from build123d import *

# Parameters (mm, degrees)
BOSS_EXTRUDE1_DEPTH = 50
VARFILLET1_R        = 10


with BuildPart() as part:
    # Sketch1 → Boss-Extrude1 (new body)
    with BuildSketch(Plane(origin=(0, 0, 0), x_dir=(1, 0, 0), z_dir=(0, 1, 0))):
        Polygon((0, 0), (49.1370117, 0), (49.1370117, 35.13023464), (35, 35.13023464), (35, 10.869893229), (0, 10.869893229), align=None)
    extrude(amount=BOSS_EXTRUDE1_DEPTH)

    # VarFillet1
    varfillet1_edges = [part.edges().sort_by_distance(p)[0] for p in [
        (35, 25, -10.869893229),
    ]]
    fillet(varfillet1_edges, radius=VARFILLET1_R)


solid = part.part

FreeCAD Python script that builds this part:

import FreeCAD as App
import Part
import Sketcher
from FreeCAD import Vector


def edges_at(feature, points):
    """Names of the edges that pass closest to the given points."""
    edges = feature.Shape.Edges
    near = lambda p: min(range(len(edges)), key=lambda i: edges[i].distToShape(Part.Vertex(*p))[0])
    return sorted({f"Edge{near(p) + 1}" for p in points})


def add_polygon(sketch, points):
    """Adds a closed chain of lines whose ends are joined by coincident constraints."""
    first, n = sketch.GeometryCount, len(points)
    for a, b in zip(points, points[1:] + points[:1]):
        sketch.addGeometry(Part.LineSegment(App.Vector(*a, 0), App.Vector(*b, 0)), False)
    for i in range(n):
        sketch.addConstraint(Sketcher.Constraint("Coincident", first + i, 2, first + (i + 1) % n, 1))

doc = App.newDocument("Part")
params = doc.addObject("Spreadsheet::Sheet", "Params")
for row, (alias, value) in enumerate([
    ("sketch1_width", "35 mm"),
    ("pad1_length", "50 mm"),
    ("fillet_radius", "10 mm"),
], start=1):
    params.set(f"A{row}", alias)
    params.set(f"B{row}", "=" + value)
    params.setAlias(f"B{row}", alias)

body = doc.addObject("PartDesign::Body", "Body")

# Sketch on XZ plane
sketch1 = body.newObject("Sketcher::SketchObject", "Sketch")
sketch1.AttachmentSupport = (doc.getObject("XZ_Plane"), [""])
sketch1.MapMode = "FlatFace"
add_polygon(sketch1, [(0, 0), (49, 0), (49, -35), (35, -35), (35, -11), (0, -11)])  # lines 0-5
sketch1.addConstraint(Sketcher.Constraint("Horizontal", 0))
sketch1.addConstraint(Sketcher.Constraint("Vertical", 1))
sketch1.addConstraint(Sketcher.Constraint("Horizontal", 2))
sketch1.addConstraint(Sketcher.Constraint("Vertical", 3))
sketch1.addConstraint(Sketcher.Constraint("Horizontal", 4))
sketch1.addConstraint(Sketcher.Constraint("Vertical", 5))
sketch1.addConstraint(Sketcher.Constraint("Coincident", 5, 2, -1, 1))
sketch1.addConstraint(Sketcher.Constraint("DistanceX", 4, 2, 4, 1, 35.0))
sketch1.addConstraint(Sketcher.Constraint("DistanceX", 0, 1, 0, 2, 49.137012))
sketch1.addConstraint(Sketcher.Constraint("DistanceY", 3, 1, 3, 2, 24.260341))
sketch1.addConstraint(Sketcher.Constraint("DistanceY", 1, 2, 1, 1, 35.130235))
sketch1.setExpression("Constraints[13]", "Params.sketch1_width")
pad1 = body.newObject("PartDesign::Pad", "Pad")
pad1.Profile = sketch1
pad1.setExpression("Length", "Params.pad1_length")
pad1.Reversed = True
doc.recompute()

fillet = body.newObject("PartDesign::Fillet", "Fillet")
fillet.Base = (pad1, edges_at(pad1, [(35, 25, -10.87)]))
fillet.setExpression("Radius", "Params.fillet_radius")

doc.recompute()
